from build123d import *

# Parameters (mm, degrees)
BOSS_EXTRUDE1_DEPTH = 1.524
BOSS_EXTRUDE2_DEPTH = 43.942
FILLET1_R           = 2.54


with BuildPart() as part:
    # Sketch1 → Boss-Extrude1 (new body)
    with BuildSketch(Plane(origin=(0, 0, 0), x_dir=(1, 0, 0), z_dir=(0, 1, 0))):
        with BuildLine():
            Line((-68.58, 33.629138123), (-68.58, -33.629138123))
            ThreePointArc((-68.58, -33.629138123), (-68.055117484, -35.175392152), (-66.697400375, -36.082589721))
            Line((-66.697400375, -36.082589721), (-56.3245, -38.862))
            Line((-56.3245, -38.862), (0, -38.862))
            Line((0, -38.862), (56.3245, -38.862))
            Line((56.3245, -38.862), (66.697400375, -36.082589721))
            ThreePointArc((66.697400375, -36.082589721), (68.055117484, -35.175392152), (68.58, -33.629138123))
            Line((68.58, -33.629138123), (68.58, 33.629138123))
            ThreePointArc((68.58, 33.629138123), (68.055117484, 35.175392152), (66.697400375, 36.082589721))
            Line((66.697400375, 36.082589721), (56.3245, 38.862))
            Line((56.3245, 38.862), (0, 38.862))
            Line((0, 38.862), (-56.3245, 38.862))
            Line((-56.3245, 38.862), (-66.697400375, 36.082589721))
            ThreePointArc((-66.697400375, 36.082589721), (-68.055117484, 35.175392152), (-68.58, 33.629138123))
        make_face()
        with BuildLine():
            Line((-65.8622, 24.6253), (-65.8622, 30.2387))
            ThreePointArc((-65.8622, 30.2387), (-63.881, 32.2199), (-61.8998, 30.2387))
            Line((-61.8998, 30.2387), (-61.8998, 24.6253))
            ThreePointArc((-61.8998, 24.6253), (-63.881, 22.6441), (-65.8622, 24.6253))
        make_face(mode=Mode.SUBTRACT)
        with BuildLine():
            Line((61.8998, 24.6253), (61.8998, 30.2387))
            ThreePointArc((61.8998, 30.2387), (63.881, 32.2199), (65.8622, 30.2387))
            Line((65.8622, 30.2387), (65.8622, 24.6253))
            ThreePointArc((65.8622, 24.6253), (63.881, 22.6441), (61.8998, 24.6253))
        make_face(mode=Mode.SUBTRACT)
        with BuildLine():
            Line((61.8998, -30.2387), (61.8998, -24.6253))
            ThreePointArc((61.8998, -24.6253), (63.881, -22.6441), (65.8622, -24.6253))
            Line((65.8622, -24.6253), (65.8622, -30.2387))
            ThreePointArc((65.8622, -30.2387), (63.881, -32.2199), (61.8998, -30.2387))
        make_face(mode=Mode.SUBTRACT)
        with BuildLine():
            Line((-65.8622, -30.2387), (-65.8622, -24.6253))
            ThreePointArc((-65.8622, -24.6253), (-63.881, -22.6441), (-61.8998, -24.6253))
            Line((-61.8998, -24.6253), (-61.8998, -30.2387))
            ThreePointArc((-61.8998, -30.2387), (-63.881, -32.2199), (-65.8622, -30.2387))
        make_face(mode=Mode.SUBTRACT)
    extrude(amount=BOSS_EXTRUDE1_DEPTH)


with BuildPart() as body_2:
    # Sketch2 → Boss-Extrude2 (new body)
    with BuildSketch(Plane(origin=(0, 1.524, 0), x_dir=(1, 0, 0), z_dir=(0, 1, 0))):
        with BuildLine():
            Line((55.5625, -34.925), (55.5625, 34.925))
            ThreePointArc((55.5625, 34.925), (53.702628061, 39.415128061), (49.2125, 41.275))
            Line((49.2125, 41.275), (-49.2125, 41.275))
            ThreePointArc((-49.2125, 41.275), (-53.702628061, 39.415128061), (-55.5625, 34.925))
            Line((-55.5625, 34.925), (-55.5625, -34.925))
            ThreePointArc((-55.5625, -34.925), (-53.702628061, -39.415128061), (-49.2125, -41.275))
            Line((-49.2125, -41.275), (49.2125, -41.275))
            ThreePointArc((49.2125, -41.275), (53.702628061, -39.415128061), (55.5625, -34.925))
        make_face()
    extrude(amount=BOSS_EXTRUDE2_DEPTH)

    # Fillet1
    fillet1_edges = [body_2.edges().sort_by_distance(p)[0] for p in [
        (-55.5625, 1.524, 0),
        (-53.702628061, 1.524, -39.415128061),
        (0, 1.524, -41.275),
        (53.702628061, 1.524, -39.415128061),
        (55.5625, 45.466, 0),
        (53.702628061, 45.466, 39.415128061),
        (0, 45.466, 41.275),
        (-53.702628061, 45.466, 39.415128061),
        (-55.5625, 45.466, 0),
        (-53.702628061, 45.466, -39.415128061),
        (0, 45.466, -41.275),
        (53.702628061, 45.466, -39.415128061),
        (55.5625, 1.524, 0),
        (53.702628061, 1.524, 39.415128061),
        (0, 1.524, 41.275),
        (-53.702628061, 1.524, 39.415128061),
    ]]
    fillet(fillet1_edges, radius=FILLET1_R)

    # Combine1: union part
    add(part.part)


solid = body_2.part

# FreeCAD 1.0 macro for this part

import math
import FreeCAD as App
import Part
import Sketcher
Q = App.Units.Quantity


def edges_at(feature, points):
    """Names of the edges that pass closest to the given points."""
    edges = feature.Shape.Edges
    near = lambda p: min(range(len(edges)), key=lambda i: edges[i].distToShape(Part.Vertex(*p))[0])
    return sorted({f"Edge{near(p) + 1}" for p in points})

doc = App.newDocument("Part")
body = doc.addObject("PartDesign::Body", "Body")

sketch1 = body.newObject("Sketcher::SketchObject", "Sketch")
sketch1.AttachmentSupport = (doc.getObject("XZ_Plane"), [""])
sketch1.MapMode = "FlatFace"
sketch1.addGeometry(Part.LineSegment(App.Vector(-68.58, -33.629138, 0), App.Vector(-68.58, 33.629138, 0)), False)
sketch1.addGeometry(Part.ArcOfCircle(Part.Circle(App.Vector(-66.04, 33.629138, 0), App.Vector(0, 0, 1), 2.54), math.radians(105), math.radians(180)), False)
sketch1.addGeometry(Part.LineSegment(App.Vector(-66.6974, 36.08259, 0), App.Vector(-56.3245, 38.862, 0)), False)
sketch1.addGeometry(Part.LineSegment(App.Vector(-56.3245, 38.862, 0), App.Vector(56.3245, 38.862, 0)), False)
sketch1.addGeometry(Part.LineSegment(App.Vector(56.3245, 38.862, 0), App.Vector(66.6974, 36.08259, 0)), False)
sketch1.addGeometry(Part.ArcOfCircle(Part.Circle(App.Vector(66.04, 33.629138, 0), App.Vector(0, 0, 1), 2.54), math.radians(0), math.radians(75)), False)
sketch1.addGeometry(Part.LineSegment(App.Vector(68.58, 33.629138, 0), App.Vector(68.58, -33.629138, 0)), False)
sketch1.addGeometry(Part.ArcOfCircle(Part.Circle(App.Vector(66.04, -33.629138, 0), App.Vector(0, 0, 1), 2.54), math.radians(-75), math.radians(0)), False)
sketch1.addGeometry(Part.LineSegment(App.Vector(66.6974, -36.08259, 0), App.Vector(56.3245, -38.862, 0)), False)
sketch1.addGeometry(Part.LineSegment(App.Vector(56.3245, -38.862, 0), App.Vector(-56.3245, -38.862, 0)), False)
sketch1.addGeometry(Part.LineSegment(App.Vector(-56.3245, -38.862, 0), App.Vector(-66.6974, -36.08259, 0)), False)
sketch1.addGeometry(Part.ArcOfCircle(Part.Circle(App.Vector(-66.04, -33.629138, 0), App.Vector(0, 0, 1), 2.54), math.radians(-180), math.radians(-105)), False)
sketch1.addGeometry(Part.ArcOfCircle(Part.Circle(App.Vector(-63.881, 30.2387, 0), App.Vector(0, 0, 1), 1.9812), math.radians(0), math.radians(180)), False)
sketch1.addGeometry(Part.LineSegment(App.Vector(-65.8622, 30.2387, 0), App.Vector(-65.8622, 24.6253, 0)), False)
sketch1.addGeometry(Part.ArcOfCircle(Part.Circle(App.Vector(-63.881, 24.6253, 0), App.Vector(0, 0, 1), 1.9812), math.radians(180), math.radians(360)), False)
sketch1.addGeometry(Part.LineSegment(App.Vector(-61.8998, 24.6253, 0), App.Vector(-61.8998, 30.2387, 0)), False)
sketch1.addGeometry(Part.ArcOfCircle(Part.Circle(App.Vector(63.881, 30.2387, 0), App.Vector(0, 0, 1), 1.9812), math.radians(0), math.radians(180)), False)
sketch1.addGeometry(Part.LineSegment(App.Vector(61.8998, 30.2387, 0), App.Vector(61.8998, 24.6253, 0)), False)
sketch1.addGeometry(Part.ArcOfCircle(Part.Circle(App.Vector(63.881, 24.6253, 0), App.Vector(0, 0, 1), 1.9812), math.radians(180), math.radians(360)), False)
sketch1.addGeometry(Part.LineSegment(App.Vector(65.8622, 24.6253, 0), App.Vector(65.8622, 30.2387, 0)), False)
sketch1.addGeometry(Part.ArcOfCircle(Part.Circle(App.Vector(-63.881, -24.6253, 0), App.Vector(0, 0, 1), 1.9812), math.radians(0), math.radians(180)), False)
sketch1.addGeometry(Part.LineSegment(App.Vector(-65.8622, -24.6253, 0), App.Vector(-65.8622, -30.2387, 0)), False)
sketch1.addGeometry(Part.ArcOfCircle(Part.Circle(App.Vector(-63.881, -30.2387, 0), App.Vector(0, 0, 1), 1.9812), math.radians(180), math.radians(360)), False)
sketch1.addGeometry(Part.LineSegment(App.Vector(-61.8998, -30.2387, 0), App.Vector(-61.8998, -24.6253, 0)), False)
sketch1.addGeometry(Part.ArcOfCircle(Part.Circle(App.Vector(63.881, -24.6253, 0), App.Vector(0, 0, 1), 1.9812), math.radians(0), math.radians(180)), False)
sketch1.addGeometry(Part.LineSegment(App.Vector(61.8998, -24.6253, 0), App.Vector(61.8998, -30.2387, 0)), False)
sketch1.addGeometry(Part.ArcOfCircle(Part.Circle(App.Vector(63.881, -30.2387, 0), App.Vector(0, 0, 1), 1.9812), math.radians(180), math.radians(360)), False)
sketch1.addGeometry(Part.LineSegment(App.Vector(65.8622, -30.2387, 0), App.Vector(65.8622, -24.6253, 0)), False)
sketch1.addConstraint(Sketcher.Constraint("Tangent", 0, 2, 1, 2))
sketch1.addConstraint(Sketcher.Constraint("Tangent", 1, 1, 2, 1))
sketch1.addConstraint(Sketcher.Constraint("Coincident", 2, 2, 3, 1))
sketch1.addConstraint(Sketcher.Constraint("Coincident", 3, 2, 4, 1))
sketch1.addConstraint(Sketcher.Constraint("Tangent", 4, 2, 5, 2))
sketch1.addConstraint(Sketcher.Constraint("Tangent", 5, 1, 6, 1))
sketch1.addConstraint(Sketcher.Constraint("Tangent", 6, 2, 7, 2))
sketch1.addConstraint(Sketcher.Constraint("Tangent", 7, 1, 8, 1))
sketch1.addConstraint(Sketcher.Constraint("Coincident", 8, 2, 9, 1))
sketch1.addConstraint(Sketcher.Constraint("Coincident", 9, 2, 10, 1))
sketch1.addConstraint(Sketcher.Constraint("Tangent", 10, 2, 11, 2))
sketch1.addConstraint(Sketcher.Constraint("Tangent", 11, 1, 0, 1))
sketch1.addConstraint(Sketcher.Constraint("Tangent", 12, 2, 13, 1))
sketch1.addConstraint(Sketcher.Constraint("Tangent", 13, 2, 14, 1))
sketch1.addConstraint(Sketcher.Constraint("Tangent", 14, 2, 15, 1))
sketch1.addConstraint(Sketcher.Constraint("Tangent", 15, 2, 12, 1))
sketch1.addConstraint(Sketcher.Constraint("Tangent", 16, 2, 17, 1))
sketch1.addConstraint(Sketcher.Constraint("Tangent", 17, 2, 18, 1))
sketch1.addConstraint(Sketcher.Constraint("Tangent", 18, 2, 19, 1))
sketch1.addConstraint(Sketcher.Constraint("Tangent", 19, 2, 16, 1))
sketch1.addConstraint(Sketcher.Constraint("Tangent", 20, 2, 21, 1))
sketch1.addConstraint(Sketcher.Constraint("Tangent", 21, 2, 22, 1))
sketch1.addConstraint(Sketcher.Constraint("Tangent", 22, 2, 23, 1))
sketch1.addConstraint(Sketcher.Constraint("Tangent", 23, 2, 20, 1))
sketch1.addConstraint(Sketcher.Constraint("Tangent", 24, 2, 25, 1))
sketch1.addConstraint(Sketcher.Constraint("Tangent", 25, 2, 26, 1))
sketch1.addConstraint(Sketcher.Constraint("Tangent", 26, 2, 27, 1))
sketch1.addConstraint(Sketcher.Constraint("Tangent", 27, 2, 24, 1))
sketch1.addConstraint(Sketcher.Constraint("Vertical", 0))
sketch1.addConstraint(Sketcher.Constraint("Horizontal", 3))
sketch1.addConstraint(Sketcher.Constraint("Vertical", 6))
sketch1.addConstraint(Sketcher.Constraint("Horizontal", 9))
sketch1.addConstraint(Sketcher.Constraint("Vertical", 13))
sketch1.addConstraint(Sketcher.Constraint("Vertical", 15))
sketch1.addConstraint(Sketcher.Constraint("Vertical", 17))
sketch1.addConstraint(Sketcher.Constraint("Vertical", 19))
sketch1.addConstraint(Sketcher.Constraint("Vertical", 21))
sketch1.addConstraint(Sketcher.Constraint("Vertical", 23))
sketch1.addConstraint(Sketcher.Constraint("Vertical", 25))
sketch1.addConstraint(Sketcher.Constraint("Vertical", 27))
sketch1.addConstraint(Sketcher.Constraint("Equal", 1, 5))
sketch1.addConstraint(Sketcher.Constraint("Equal", 5, 7))
sketch1.addConstraint(Sketcher.Constraint("Equal", 7, 11))
sketch1.addConstraint(Sketcher.Constraint("Equal", 14, 16))
sketch1.addConstraint(Sketcher.Constraint("Equal", 18, 20))
sketch1.addConstraint(Sketcher.Constraint("Equal", 22, 24))
sketch1.addConstraint(Sketcher.Constraint("Symmetric", 1, 3, 7, 3, -1, 1))
sketch1.addConstraint(Sketcher.Constraint("Symmetric", 18, 3, 20, 3, -1, 1))
sketch1.addConstraint(Sketcher.Constraint("Symmetric", 14, 3, 24, 3, -1, 1))
sketch1.addConstraint(Sketcher.Constraint("Symmetric", 2, 2, 8, 2, -1, 1))
sketch1.addConstraint(Sketcher.Constraint("Symmetric", 4, 2, 10, 2, -1, 1))
sketch1.addConstraint(Sketcher.Constraint("Symmetric", 12, 3, 16, 3, -2))
sketch1.addConstraint(Sketcher.Constraint("Symmetric", 1, 1, 4, 2, -2))
sketch1.addConstraint(Sketcher.Constraint("Horizontal", 14, 3, 18, 3))
sketch1.addConstraint(Sketcher.Constraint("Horizontal", 22, 3, 26, 3))
sketch1.addConstraint(Sketcher.Constraint("Equal", 19, 21))
sketch1.addConstraint(Sketcher.Constraint("Radius", 1, Q("0.1 in")))
sketch1.addConstraint(Sketcher.Constraint("Angle", 2, Q("15 deg")))
sketch1.addConstraint(Sketcher.Constraint("Radius", 12, Q("0.078 in")))
sketch1.addConstraint(Sketcher.Constraint("DistanceX", 1, 3, -1, 1, Q("2.6 in")))
sketch1.addConstraint(Sketcher.Constraint("DistanceX", 3, 1, 3, 2, Q("4.435 in")))
sketch1.addConstraint(Sketcher.Constraint("DistanceY", 13, 2, 13, 1, Q("0.221 in")))
sketch1.addConstraint(Sketcher.Constraint("DistanceY", -1, 1, 2, 2, Q("1.53 in")))
sketch1.addConstraint(Sketcher.Constraint("DistanceX", 12, 3, 16, 3, Q("5.03 in")))
sketch1.addConstraint(Sketcher.Constraint("DistanceY", 20, 3, 12, 3, Q("2.16 in")))
pad1 = body.newObject("PartDesign::Pad", "Pad")
pad1.Profile = sketch1
pad1.Length = Q("0.06 in")
pad1.Reversed = True
body2 = doc.addObject("PartDesign::Body", "Body001")

sketch2 = body2.newObject("Sketcher::SketchObject", "Sketch001")
sketch2.AttachmentSupport = (doc.getObject("XZ_Plane001"), [""])
sketch2.MapMode = "FlatFace"
sketch2.AttachmentOffset = App.Placement(App.Vector(0, 0, -0.06 * 25.4), App.Rotation())
sketch2.addGeometry(Part.LineSegment(App.Vector(55.5625, 34.925, 0), App.Vector(55.5625, -34.925, 0)), False)
sketch2.addGeometry(Part.ArcOfCircle(Part.Circle(App.Vector(49.2125, -34.925, 0), App.Vector(0, 0, 1), 6.35), math.radians(-90), math.radians(0)), False)
sketch2.addGeometry(Part.LineSegment(App.Vector(49.2125, -41.275, 0), App.Vector(-49.2125, -41.275, 0)), False)
sketch2.addGeometry(Part.ArcOfCircle(Part.Circle(App.Vector(-49.2125, -34.925, 0), App.Vector(0, 0, 1), 6.35), math.radians(180), math.radians(270)), False)
sketch2.addGeometry(Part.LineSegment(App.Vector(-55.5625, -34.925, 0), App.Vector(-55.5625, 34.925, 0)), False)
sketch2.addGeometry(Part.ArcOfCircle(Part.Circle(App.Vector(-49.2125, 34.925, 0), App.Vector(0, 0, 1), 6.35), math.radians(90), math.radians(180)), False)
sketch2.addGeometry(Part.LineSegment(App.Vector(-49.2125, 41.275, 0), App.Vector(49.2125, 41.275, 0)), False)
sketch2.addGeometry(Part.ArcOfCircle(Part.Circle(App.Vector(49.2125, 34.925, 0), App.Vector(0, 0, 1), 6.35), math.radians(0), math.radians(90)), False)
sketch2.addConstraint(Sketcher.Constraint("Tangent", 0, 2, 1, 2))
sketch2.addConstraint(Sketcher.Constraint("Tangent", 1, 1, 2, 1))
sketch2.addConstraint(Sketcher.Constraint("Tangent", 2, 2, 3, 2))
sketch2.addConstraint(Sketcher.Constraint("Tangent", 3, 1, 4, 1))
sketch2.addConstraint(Sketcher.Constraint("Tangent", 4, 2, 5, 2))
sketch2.addConstraint(Sketcher.Constraint("Tangent", 5, 1, 6, 1))
sketch2.addConstraint(Sketcher.Constraint("Tangent", 6, 2, 7, 2))
sketch2.addConstraint(Sketcher.Constraint("Tangent", 7, 1, 0, 1))
sketch2.addConstraint(Sketcher.Constraint("Vertical", 0))
sketch2.addConstraint(Sketcher.Constraint("Horizontal", 2))
sketch2.addConstraint(Sketcher.Constraint("Vertical", 4))
sketch2.addConstraint(Sketcher.Constraint("Horizontal", 6))
sketch2.addConstraint(Sketcher.Constraint("Equal", 1, 3))
sketch2.addConstraint(Sketcher.Constraint("Equal", 3, 5))
sketch2.addConstraint(Sketcher.Constraint("Equal", 5, 7))
sketch2.addConstraint(Sketcher.Constraint("Symmetric", 1, 3, 5, 3, -1, 1))
sketch2.addConstraint(Sketcher.Constraint("Radius", 1, Q("0.25 in")))
sketch2.addConstraint(Sketcher.Constraint("DistanceY", 1, 1, 7, 3, Q("3 in")))
sketch2.addConstraint(Sketcher.Constraint("DistanceX", 2, 2, 2, 1, Q("3.875 in")))
pad2 = body2.newObject("PartDesign::Pad", "Pad001")
pad2.Profile = sketch2
pad2.Length = Q("1.73 in")
pad2.Reversed = True
doc.recompute()

fillet = body2.newObject("PartDesign::Fillet", "Fillet")
fillet.Base = (pad2, edges_at(pad2, [
    (-55.562, 1.524, 0),
    (-53.703, 1.524, -39.415),
    (0, 1.524, -41.275),
    (53.703, 1.524, -39.415),
    (55.562, 45.466, 0),
    (53.703, 45.466, 39.415),
    (0, 45.466, 41.275),
    (-53.703, 45.466, 39.415),
    (-55.562, 45.466, 0),
    (-53.703, 45.466, -39.415),
    (0, 45.466, -41.275),
    (53.703, 45.466, -39.415),
    (55.562, 1.524, 0),
    (53.703, 1.524, 39.415),
    (0, 1.524, 41.275),
    (-53.703, 1.524, 39.415),
]))
fillet.Radius = Q("0.1 in")
doc.recompute()

boolean = body2.newObject("PartDesign::Boolean", "Boolean")
boolean.Type = "Fuse"
boolean.addObjects([body])

doc.recompute()
